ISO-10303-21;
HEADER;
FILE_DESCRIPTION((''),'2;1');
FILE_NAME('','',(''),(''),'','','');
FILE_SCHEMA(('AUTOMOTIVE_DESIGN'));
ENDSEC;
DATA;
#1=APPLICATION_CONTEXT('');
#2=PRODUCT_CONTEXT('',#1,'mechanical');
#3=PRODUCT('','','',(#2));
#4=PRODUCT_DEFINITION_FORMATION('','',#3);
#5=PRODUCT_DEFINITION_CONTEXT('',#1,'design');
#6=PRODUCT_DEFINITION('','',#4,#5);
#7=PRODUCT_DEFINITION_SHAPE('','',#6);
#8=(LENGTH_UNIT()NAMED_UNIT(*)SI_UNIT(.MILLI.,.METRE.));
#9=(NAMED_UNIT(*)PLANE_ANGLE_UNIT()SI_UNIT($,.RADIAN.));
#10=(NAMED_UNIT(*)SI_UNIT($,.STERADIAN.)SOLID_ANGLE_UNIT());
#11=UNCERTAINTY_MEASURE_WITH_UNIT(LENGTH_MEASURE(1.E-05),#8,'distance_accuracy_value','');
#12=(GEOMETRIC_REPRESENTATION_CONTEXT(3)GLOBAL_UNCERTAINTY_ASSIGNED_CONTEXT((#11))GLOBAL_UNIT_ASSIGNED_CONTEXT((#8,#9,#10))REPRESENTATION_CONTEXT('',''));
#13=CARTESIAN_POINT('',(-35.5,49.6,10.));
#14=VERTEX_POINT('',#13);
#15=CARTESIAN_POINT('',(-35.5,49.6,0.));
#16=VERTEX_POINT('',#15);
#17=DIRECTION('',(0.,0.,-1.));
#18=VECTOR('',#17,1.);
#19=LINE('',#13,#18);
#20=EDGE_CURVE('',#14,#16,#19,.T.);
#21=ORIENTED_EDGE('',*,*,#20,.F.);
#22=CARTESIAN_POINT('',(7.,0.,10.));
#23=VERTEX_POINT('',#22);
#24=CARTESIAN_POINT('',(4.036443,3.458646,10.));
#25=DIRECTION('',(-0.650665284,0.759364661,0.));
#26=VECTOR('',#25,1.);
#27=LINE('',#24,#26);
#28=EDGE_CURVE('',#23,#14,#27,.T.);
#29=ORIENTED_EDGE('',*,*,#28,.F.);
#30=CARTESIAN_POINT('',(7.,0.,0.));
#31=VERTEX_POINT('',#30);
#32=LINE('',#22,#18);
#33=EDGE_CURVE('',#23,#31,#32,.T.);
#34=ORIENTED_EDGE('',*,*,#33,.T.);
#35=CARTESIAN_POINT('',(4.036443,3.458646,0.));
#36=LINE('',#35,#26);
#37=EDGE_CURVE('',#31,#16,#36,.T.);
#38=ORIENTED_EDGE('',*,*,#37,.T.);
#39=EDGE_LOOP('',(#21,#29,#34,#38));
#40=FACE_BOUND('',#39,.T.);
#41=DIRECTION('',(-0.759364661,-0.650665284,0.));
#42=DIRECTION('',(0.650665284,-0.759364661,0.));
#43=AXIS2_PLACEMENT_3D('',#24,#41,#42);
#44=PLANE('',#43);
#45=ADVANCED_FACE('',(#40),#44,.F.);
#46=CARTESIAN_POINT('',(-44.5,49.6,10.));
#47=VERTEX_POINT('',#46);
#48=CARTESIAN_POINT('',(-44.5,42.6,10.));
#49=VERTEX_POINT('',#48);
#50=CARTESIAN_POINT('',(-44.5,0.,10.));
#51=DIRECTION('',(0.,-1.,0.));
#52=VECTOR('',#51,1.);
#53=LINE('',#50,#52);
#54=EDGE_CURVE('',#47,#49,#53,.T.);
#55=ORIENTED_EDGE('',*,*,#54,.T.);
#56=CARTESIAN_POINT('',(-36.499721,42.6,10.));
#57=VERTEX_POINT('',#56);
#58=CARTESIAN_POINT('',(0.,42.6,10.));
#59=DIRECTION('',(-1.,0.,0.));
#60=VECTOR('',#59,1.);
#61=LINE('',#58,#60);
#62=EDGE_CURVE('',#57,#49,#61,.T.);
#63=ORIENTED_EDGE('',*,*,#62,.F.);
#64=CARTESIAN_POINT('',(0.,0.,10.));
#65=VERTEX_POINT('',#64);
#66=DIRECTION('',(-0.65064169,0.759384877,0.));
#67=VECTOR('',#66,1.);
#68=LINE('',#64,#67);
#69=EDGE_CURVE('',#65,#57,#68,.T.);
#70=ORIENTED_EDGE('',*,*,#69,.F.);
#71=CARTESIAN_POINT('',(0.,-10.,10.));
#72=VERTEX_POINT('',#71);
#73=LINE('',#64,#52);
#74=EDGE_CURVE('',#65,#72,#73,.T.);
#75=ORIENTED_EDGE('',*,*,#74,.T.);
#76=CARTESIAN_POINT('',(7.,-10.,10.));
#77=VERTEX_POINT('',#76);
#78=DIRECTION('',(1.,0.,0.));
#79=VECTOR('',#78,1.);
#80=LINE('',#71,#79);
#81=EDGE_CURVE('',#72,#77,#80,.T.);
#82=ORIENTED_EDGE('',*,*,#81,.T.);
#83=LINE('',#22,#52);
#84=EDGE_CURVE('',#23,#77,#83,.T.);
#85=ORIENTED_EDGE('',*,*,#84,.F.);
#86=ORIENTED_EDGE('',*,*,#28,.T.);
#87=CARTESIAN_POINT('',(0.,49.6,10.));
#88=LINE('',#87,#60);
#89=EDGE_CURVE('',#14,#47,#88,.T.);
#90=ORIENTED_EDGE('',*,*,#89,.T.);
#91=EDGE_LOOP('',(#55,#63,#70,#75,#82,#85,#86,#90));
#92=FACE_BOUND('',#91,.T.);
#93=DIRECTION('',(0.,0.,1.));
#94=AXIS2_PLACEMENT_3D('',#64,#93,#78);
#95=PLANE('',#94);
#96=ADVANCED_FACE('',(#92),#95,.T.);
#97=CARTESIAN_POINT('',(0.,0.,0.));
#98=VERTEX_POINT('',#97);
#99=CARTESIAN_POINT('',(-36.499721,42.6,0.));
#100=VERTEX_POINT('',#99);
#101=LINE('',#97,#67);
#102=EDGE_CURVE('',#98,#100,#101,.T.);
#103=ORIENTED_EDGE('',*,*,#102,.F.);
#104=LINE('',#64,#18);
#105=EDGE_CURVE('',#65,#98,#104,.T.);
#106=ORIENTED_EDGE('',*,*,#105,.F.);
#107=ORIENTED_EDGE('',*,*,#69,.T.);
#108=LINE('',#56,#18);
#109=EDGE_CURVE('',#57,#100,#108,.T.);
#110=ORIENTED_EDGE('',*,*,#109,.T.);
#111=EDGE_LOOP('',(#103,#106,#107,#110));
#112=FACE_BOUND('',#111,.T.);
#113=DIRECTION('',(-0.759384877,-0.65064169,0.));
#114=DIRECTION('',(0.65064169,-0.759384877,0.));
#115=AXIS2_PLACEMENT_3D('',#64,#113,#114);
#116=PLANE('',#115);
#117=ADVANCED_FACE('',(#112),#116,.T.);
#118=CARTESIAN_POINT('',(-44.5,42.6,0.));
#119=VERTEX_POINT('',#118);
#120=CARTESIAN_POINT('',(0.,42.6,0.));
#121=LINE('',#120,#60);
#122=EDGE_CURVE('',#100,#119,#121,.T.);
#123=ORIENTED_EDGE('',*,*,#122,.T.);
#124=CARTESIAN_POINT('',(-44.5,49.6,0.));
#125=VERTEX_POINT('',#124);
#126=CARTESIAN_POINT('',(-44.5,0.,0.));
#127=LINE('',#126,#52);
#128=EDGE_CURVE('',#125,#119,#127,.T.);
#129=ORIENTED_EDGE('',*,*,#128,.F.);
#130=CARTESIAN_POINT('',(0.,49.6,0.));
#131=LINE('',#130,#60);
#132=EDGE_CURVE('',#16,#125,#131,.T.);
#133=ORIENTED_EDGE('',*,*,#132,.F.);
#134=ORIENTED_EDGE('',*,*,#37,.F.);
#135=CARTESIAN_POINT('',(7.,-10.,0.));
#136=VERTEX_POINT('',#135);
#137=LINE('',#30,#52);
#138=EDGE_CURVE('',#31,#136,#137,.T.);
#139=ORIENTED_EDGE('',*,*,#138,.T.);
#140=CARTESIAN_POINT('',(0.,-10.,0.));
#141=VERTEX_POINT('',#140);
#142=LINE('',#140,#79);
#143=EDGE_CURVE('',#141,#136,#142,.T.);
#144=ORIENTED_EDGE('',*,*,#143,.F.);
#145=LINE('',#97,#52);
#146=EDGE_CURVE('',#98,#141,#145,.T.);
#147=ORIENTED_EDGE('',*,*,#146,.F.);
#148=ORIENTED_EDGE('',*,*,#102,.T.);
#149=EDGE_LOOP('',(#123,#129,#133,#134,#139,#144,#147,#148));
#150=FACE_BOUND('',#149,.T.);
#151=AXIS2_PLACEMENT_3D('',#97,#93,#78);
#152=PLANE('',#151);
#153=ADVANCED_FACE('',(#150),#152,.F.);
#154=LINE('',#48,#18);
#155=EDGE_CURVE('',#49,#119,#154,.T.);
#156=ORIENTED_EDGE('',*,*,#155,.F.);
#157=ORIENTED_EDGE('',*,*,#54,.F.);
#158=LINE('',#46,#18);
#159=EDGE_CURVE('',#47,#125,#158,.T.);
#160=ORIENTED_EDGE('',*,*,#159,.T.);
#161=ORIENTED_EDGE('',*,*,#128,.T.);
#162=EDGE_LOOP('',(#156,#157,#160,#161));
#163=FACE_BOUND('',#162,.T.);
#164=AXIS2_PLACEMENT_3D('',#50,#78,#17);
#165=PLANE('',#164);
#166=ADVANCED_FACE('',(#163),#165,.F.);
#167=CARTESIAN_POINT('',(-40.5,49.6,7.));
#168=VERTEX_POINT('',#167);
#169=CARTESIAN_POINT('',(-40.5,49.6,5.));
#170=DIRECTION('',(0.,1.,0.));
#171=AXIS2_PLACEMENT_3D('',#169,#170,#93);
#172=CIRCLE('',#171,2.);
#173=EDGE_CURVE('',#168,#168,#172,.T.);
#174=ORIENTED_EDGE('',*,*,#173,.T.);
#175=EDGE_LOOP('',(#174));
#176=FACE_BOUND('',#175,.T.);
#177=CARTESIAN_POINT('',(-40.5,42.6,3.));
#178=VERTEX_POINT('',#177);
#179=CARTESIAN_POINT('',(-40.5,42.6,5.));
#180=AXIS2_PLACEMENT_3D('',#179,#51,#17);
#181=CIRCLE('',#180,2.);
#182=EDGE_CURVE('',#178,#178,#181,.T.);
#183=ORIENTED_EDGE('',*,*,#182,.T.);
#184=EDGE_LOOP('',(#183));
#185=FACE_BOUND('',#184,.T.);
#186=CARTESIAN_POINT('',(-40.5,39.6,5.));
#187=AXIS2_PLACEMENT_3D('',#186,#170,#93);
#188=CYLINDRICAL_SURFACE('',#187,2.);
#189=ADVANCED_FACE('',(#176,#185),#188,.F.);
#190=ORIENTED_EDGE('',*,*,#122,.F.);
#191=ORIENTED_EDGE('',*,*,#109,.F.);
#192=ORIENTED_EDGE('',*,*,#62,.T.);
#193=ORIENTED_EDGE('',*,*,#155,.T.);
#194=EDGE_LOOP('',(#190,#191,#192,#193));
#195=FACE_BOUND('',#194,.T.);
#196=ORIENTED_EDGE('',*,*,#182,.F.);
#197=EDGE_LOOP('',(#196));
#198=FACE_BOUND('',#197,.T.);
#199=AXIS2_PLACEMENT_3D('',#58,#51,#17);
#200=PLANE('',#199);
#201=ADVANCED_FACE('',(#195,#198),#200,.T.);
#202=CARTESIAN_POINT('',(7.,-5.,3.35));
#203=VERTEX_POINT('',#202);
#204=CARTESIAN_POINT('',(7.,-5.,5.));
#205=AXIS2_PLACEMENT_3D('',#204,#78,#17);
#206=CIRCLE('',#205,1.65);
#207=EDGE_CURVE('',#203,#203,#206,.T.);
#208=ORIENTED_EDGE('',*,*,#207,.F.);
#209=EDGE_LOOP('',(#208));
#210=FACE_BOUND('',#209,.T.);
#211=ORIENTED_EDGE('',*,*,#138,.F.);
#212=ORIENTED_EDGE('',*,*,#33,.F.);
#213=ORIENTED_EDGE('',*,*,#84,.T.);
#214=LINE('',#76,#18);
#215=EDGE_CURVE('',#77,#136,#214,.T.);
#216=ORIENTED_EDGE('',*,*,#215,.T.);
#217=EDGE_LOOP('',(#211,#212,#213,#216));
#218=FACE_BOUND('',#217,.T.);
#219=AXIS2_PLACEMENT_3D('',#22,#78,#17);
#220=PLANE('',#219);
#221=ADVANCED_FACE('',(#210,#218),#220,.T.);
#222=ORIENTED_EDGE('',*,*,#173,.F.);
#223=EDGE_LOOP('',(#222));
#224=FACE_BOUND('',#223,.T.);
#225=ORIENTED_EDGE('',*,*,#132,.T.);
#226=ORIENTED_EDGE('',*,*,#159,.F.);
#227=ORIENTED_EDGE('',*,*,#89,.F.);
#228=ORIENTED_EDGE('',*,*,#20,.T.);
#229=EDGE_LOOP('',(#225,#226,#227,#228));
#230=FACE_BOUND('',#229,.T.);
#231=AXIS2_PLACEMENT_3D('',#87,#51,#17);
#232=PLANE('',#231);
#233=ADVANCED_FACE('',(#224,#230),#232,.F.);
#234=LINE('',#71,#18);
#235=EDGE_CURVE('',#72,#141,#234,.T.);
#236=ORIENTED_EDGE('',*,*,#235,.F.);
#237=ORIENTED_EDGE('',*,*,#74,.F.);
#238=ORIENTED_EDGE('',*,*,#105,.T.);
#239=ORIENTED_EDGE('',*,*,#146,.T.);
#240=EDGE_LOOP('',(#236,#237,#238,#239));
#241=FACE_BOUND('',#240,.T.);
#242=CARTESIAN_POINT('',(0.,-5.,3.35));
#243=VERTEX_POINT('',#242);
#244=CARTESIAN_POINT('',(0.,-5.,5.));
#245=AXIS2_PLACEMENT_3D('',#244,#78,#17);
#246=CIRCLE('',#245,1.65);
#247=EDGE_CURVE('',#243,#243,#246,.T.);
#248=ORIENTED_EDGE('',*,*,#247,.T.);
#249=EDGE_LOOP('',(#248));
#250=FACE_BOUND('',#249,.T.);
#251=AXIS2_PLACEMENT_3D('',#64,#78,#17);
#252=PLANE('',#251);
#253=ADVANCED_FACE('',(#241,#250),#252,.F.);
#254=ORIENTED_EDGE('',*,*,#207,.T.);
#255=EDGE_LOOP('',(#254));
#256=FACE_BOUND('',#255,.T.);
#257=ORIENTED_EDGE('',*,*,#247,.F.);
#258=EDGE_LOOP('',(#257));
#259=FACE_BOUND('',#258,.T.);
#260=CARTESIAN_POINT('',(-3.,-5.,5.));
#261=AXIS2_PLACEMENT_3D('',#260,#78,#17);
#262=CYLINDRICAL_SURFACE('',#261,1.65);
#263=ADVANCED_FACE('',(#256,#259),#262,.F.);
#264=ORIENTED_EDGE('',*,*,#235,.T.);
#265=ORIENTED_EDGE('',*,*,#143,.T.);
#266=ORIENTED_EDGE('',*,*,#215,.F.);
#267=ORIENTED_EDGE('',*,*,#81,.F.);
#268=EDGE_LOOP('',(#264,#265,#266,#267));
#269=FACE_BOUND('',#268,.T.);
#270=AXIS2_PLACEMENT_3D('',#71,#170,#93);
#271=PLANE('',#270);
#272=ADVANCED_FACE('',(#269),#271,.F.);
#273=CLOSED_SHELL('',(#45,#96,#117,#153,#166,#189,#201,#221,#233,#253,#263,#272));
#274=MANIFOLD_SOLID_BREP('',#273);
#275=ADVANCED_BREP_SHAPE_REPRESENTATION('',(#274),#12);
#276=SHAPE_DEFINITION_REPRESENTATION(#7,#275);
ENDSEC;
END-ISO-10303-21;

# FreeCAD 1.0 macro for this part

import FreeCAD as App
import Part
import Sketcher

V = App.Vector
Q = App.Units.Quantity

doc = App.newDocument("Part")
params = doc.addObject("Spreadsheet::Sheet", "Params")
for row, (alias, value) in enumerate([
    ("sketch1_width", "7 mm"),
    ("sketch1_width2", "9 mm"),
    ("sketch1_height", "10 mm"),
    ("pad1_length", "10 mm"),
    ("sketch2_diameter", "4 mm"),
    ("pocket1_length", "10 mm"),
    ("sketch3_diameter", "3.3 mm"),
    ("pocket2_length", "10 mm"),
], start=1):
    params.set(f"A{row}", alias)
    params.set(f"B{row}", "=" + value)
    params.setAlias(f"B{row}", alias)

body = doc.addObject("PartDesign::Body", "Body")

sketch1 = body.newObject("Sketcher::SketchObject", "Sketch")
sketch1.AttachmentSupport = (doc.getObject("XY_Plane"), [""])
sketch1.MapMode = "FlatFace"
sketch1.addGeometry(Part.LineSegment(V(-36, 43, 0), V(0, 0, 0)), False)
sketch1.addGeometry(Part.LineSegment(V(0, 0, 0), V(0, -10, 0)), False)
sketch1.addGeometry(Part.LineSegment(V(0, -10, 0), V(7, -10, 0)), False)
sketch1.addGeometry(Part.LineSegment(V(7, -10, 0), V(7, 0, 0)), False)
sketch1.addGeometry(Part.LineSegment(V(7, 0, 0), V(-36, 50, 0)), False)
sketch1.addGeometry(Part.LineSegment(V(-36, 50, 0), V(-44, 50, 0)), False)
sketch1.addGeometry(Part.LineSegment(V(-44, 50, 0), V(-44, 43, 0)), False)
sketch1.addGeometry(Part.LineSegment(V(-44, 43, 0), V(-36, 43, 0)), False)
sketch1.addConstraint(Sketcher.Constraint("Coincident", 0, 2, 1, 1))
sketch1.addConstraint(Sketcher.Constraint("Coincident", 1, 2, 2, 1))
sketch1.addConstraint(Sketcher.Constraint("Coincident", 2, 2, 3, 1))
sketch1.addConstraint(Sketcher.Constraint("Coincident", 3, 2, 4, 1))
sketch1.addConstraint(Sketcher.Constraint("Coincident", 4, 2, 5, 1))
sketch1.addConstraint(Sketcher.Constraint("Coincident", 5, 2, 6, 1))
sketch1.addConstraint(Sketcher.Constraint("Coincident", 6, 2, 7, 1))
sketch1.addConstraint(Sketcher.Constraint("Coincident", 7, 2, 0, 1))
sketch1.addConstraint(Sketcher.Constraint("Vertical", 1))
sketch1.addConstraint(Sketcher.Constraint("Horizontal", 2))
sketch1.addConstraint(Sketcher.Constraint("Vertical", 3))
sketch1.addConstraint(Sketcher.Constraint("Horizontal", 5))
sketch1.addConstraint(Sketcher.Constraint("Vertical", 6))
sketch1.addConstraint(Sketcher.Constraint("Horizontal", 7))
sketch1.addConstraint(Sketcher.Constraint("Coincident", 0, 2, -1, 1))
sketch1.addConstraint(Sketcher.Constraint("PointOnObject", 3, 2, -1))
sketch1.addConstraint(Sketcher.Constraint("Equal", 2, 6))
sketch1.addConstraint(Sketcher.Constraint("DistanceX", 2, 1, 2, 2, Q("7 mm")))
sketch1.addConstraint(Sketcher.Constraint("DistanceX", 5, 2, 5, 1, Q("9 mm")))
sketch1.addConstraint(Sketcher.Constraint("DistanceY", 1, 2, 1, 1, Q("10 mm")))
sketch1.addConstraint(Sketcher.Constraint("DistanceX", 4, 2, -1, 1, Q("35.5 mm")))
sketch1.addConstraint(Sketcher.Constraint("DistanceY", -1, 1, 4, 2, Q("49.6 mm")))
sketch1.addConstraint(Sketcher.Constraint("Angle", 0, Q("-49.41 deg")))
sketch1.setExpression("Constraints[17]", "Params.sketch1_width")
sketch1.setExpression("Constraints[18]", "Params.sketch1_width2")
sketch1.setExpression("Constraints[19]", "Params.sketch1_height")
pad1 = body.newObject("PartDesign::Pad", "Pad")
pad1.Profile = sketch1
pad1.setExpression("Length", "Params.pad1_length")

sketch2 = body.newObject("Sketcher::SketchObject", "Sketch001")
sketch2.AttachmentSupport = (doc.getObject("XZ_Plane"), [""])
sketch2.MapMode = "FlatFace"
sketch2.AttachmentOffset = App.Placement(V(0, 0, -49.6), App.Rotation())
sketch2.addGeometry(Part.Circle(V(-40.5, 5, 0), V(0, 0, 1), 2), False)
sketch2.addConstraint(Sketcher.Constraint("Diameter", 0, Q("4 mm")))
sketch2.addConstraint(Sketcher.Constraint("DistanceY", -1, 1, 0, 3, Q("5 mm")))
sketch2.addConstraint(Sketcher.Constraint("DistanceX", 0, 3, -1, 1, Q("40.5 mm")))
sketch2.setExpression("Constraints[0]", "Params.sketch2_diameter")
pocket1 = body.newObject("PartDesign::Pocket", "Pocket")
pocket1.Profile = sketch2
pocket1.setExpression("Length", "Params.pocket1_length")
pocket1.Reversed = True

sketch3 = body.newObject("Sketcher::SketchObject", "Sketch002")
sketch3.AttachmentSupport = (doc.getObject("YZ_Plane"), [""])
sketch3.MapMode = "FlatFace"
sketch3.AttachmentOffset = App.Placement(V(0, 0, 7), App.Rotation())
sketch3.addGeometry(Part.Circle(V(-5, 5, 0), V(0, 0, 1), 1.6), False)
sketch3.addConstraint(Sketcher.Constraint("Diameter", 0, Q("3.3 mm")))
sketch3.addConstraint(Sketcher.Constraint("DistanceX", 0, 3, -1, 1, Q("5 mm")))
sketch3.addConstraint(Sketcher.Constraint("DistanceY", -1, 1, 0, 3, Q("5 mm")))
sketch3.setExpression("Constraints[0]", "Params.sketch3_diameter")
pocket2 = body.newObject("PartDesign::Pocket", "Pocket001")
pocket2.Profile = sketch3
pocket2.setExpression("Length", "Params.pocket2_length")

doc.recompute()
